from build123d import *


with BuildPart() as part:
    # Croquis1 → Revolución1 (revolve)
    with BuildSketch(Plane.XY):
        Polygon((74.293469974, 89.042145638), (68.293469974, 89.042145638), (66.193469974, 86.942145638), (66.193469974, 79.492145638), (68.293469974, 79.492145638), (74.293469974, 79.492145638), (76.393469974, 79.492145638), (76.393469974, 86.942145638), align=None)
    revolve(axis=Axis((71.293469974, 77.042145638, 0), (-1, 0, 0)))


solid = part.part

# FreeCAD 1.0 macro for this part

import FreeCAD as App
import Part
import Sketcher

doc = App.newDocument("Part")
body = doc.addObject("PartDesign::Body", "Body")

# Sketch on XY plane
sketch1 = body.newObject("Sketcher::SketchObject", "Sketch")
sketch1.AttachmentSupport = (doc.getObject("XY_Plane"), [""])
sketch1.MapMode = "FlatFace"
sketch1.addGeometry([
    Part.LineSegment(App.Vector(74.3, 89, 0), App.Vector(68.3, 89, 0)),  # 0
    Part.LineSegment(App.Vector(68.3, 89, 0), App.Vector(66.2, 86.9, 0)),  # 1
    Part.LineSegment(App.Vector(66.2, 86.9, 0), App.Vector(66.2, 79.5, 0)),  # 2
    Part.LineSegment(App.Vector(66.2, 79.5, 0), App.Vector(76.4, 79.5, 0)),  # 3
    Part.LineSegment(App.Vector(76.4, 79.5, 0), App.Vector(76.4, 86.9, 0)),  # 4
    Part.LineSegment(App.Vector(76.4, 86.9, 0), App.Vector(74.3, 89, 0)),  # 5
], False)
sketch1.addGeometry(Part.LineSegment(App.Vector(76.4, 77, 0), App.Vector(66.2, 77, 0)), True)  # axis
sketch1.addConstraint([
    Sketcher.Constraint("Coincident", 0, 2, 1, 1),
    Sketcher.Constraint("Coincident", 1, 2, 2, 1),
    Sketcher.Constraint("Coincident", 2, 2, 3, 1),
    Sketcher.Constraint("Coincident", 3, 2, 4, 1),
    Sketcher.Constraint("Coincident", 4, 2, 5, 1),
    Sketcher.Constraint("Coincident", 5, 2, 0, 1),
    Sketcher.Constraint("Horizontal", 0),
    Sketcher.Constraint("Vertical", 2),
    Sketcher.Constraint("Horizontal", 3),
    Sketcher.Constraint("Vertical", 4),
    Sketcher.Constraint("Horizontal", 6),
    Sketcher.Constraint("Perpendicular", 1, 5),
    Sketcher.Constraint("Horizontal", 1, 2, 4, 2),
    Sketcher.Constraint("Vertical", 4, 2, 6, 1),
    Sketcher.Constraint("Vertical", 2, 2, 6, 2),
    Sketcher.Constraint("Equal", 1, 5),
    Sketcher.Constraint("DistanceX", 0, 2, 0, 1, 6.0),
    Sketcher.Constraint("DistanceX", 3, 1, 3, 2, 10.2),
    Sketcher.Constraint("DistanceY", 6, 1, 5, 2, 12.0),
    Sketcher.Constraint("DistanceY", 2, 2, 2, 1, 7.45),
    Sketcher.Constraint("DistanceX", -1, 1, 0, 2, 68.29347),
    Sketcher.Constraint("DistanceY", -1, 1, 0, 2, 89.042146),
])
revolution = body.newObject("PartDesign::Revolution", "Revolution")
revolution.Profile = sketch1
revolution.ReferenceAxis = (sketch1, ["Axis0"])
revolution.Angle = 360

doc.recompute()
